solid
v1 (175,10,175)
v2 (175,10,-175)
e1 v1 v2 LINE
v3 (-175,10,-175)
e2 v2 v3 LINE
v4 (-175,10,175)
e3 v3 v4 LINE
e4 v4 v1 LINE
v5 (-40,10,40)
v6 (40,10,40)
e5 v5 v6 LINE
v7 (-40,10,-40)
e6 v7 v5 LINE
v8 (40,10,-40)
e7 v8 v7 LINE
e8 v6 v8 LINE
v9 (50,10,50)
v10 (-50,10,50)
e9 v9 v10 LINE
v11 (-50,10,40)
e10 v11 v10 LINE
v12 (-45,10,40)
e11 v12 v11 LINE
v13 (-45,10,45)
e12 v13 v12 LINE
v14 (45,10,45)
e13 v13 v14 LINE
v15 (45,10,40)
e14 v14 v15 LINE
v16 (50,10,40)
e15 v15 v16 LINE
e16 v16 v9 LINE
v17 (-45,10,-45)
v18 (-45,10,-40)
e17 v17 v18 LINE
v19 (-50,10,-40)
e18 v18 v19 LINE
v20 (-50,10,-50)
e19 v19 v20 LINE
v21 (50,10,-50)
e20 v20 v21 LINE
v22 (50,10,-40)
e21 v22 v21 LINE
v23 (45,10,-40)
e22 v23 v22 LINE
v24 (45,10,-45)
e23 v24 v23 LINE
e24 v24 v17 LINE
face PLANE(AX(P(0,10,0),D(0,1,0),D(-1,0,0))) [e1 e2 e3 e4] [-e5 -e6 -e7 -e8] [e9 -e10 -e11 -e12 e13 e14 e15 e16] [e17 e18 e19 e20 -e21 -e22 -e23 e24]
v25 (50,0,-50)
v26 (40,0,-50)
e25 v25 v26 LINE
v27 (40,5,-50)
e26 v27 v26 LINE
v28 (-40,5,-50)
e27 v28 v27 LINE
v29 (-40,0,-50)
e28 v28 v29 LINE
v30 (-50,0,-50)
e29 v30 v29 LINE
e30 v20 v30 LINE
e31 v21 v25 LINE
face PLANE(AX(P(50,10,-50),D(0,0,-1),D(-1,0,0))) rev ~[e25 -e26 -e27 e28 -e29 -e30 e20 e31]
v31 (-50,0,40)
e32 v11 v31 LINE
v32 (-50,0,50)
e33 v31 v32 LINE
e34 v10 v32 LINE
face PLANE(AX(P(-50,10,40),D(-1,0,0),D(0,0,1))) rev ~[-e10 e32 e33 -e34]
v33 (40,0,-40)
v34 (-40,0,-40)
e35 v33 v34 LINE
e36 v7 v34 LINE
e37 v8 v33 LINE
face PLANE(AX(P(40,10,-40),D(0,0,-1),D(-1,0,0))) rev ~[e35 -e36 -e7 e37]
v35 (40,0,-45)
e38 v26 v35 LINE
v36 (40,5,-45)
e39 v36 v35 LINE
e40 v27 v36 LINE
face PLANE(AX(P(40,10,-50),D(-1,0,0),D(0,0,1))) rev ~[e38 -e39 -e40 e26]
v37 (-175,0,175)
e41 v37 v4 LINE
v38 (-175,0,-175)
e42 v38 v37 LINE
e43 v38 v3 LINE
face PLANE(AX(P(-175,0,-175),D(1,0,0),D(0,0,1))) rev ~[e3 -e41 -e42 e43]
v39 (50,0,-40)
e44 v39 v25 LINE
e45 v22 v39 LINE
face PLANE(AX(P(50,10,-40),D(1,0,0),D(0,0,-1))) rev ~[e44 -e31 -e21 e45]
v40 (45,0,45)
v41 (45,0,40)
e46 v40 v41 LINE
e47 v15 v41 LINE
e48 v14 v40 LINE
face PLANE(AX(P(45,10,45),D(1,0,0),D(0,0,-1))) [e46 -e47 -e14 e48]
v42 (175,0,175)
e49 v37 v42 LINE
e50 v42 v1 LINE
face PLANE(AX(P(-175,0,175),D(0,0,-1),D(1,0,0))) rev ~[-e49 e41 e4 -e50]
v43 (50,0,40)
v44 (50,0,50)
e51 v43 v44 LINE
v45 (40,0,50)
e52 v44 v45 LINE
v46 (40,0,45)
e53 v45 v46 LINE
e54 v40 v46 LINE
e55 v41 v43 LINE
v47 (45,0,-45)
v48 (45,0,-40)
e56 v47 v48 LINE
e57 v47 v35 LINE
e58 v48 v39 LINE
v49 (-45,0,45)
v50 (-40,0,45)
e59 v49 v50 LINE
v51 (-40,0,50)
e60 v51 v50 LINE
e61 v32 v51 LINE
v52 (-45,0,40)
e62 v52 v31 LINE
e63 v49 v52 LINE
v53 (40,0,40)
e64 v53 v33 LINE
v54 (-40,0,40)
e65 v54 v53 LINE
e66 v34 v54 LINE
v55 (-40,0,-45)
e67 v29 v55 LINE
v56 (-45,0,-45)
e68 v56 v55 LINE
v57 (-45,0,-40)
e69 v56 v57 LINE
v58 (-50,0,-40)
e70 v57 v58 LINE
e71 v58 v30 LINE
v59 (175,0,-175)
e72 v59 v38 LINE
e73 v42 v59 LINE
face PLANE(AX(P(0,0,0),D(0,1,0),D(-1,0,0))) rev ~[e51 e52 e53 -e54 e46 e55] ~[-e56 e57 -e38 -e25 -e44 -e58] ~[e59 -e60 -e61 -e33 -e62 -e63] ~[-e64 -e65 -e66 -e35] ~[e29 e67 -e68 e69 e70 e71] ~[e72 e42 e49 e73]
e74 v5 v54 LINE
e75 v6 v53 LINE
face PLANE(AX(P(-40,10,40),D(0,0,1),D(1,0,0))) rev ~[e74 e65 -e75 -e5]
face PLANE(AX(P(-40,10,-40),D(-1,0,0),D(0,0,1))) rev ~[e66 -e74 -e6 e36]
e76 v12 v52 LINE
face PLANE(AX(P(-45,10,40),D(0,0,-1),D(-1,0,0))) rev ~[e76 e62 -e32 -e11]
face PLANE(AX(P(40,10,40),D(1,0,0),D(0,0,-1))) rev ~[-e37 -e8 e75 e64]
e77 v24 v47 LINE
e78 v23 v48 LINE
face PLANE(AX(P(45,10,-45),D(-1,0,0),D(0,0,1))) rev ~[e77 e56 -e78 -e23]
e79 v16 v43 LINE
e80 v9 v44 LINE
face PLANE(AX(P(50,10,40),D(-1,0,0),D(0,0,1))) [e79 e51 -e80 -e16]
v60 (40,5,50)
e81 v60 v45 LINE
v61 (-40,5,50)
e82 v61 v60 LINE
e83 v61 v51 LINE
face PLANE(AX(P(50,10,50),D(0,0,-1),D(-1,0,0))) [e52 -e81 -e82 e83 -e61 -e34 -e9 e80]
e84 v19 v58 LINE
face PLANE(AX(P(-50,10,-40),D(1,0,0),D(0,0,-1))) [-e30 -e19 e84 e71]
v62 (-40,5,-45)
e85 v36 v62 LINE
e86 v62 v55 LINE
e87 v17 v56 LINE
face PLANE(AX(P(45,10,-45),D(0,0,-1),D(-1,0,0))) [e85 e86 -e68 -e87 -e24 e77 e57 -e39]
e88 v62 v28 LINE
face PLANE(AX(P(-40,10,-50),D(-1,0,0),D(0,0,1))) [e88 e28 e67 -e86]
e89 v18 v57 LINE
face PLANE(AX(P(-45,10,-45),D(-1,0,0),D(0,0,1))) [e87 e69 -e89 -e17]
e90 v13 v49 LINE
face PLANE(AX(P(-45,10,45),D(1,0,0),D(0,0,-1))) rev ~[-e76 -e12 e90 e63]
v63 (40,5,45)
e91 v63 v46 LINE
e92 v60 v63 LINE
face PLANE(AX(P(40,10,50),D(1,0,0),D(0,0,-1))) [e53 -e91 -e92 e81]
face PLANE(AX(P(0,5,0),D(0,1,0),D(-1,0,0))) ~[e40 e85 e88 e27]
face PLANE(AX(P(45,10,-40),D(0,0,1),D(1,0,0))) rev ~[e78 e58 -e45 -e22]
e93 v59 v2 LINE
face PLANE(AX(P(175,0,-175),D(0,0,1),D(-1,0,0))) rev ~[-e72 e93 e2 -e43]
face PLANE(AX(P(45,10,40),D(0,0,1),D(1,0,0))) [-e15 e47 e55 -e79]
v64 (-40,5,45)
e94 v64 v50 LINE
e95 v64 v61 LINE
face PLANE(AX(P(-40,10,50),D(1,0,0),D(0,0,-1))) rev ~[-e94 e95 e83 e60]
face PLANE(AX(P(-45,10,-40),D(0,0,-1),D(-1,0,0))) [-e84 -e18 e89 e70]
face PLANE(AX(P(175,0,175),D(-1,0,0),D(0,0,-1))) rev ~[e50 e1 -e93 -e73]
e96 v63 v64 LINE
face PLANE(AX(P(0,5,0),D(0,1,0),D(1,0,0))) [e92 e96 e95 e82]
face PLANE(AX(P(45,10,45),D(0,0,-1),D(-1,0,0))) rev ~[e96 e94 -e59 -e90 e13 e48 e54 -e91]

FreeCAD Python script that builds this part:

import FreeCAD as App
import Part
import Sketcher
Q = App.Units.Quantity

doc = App.newDocument("Part")
body = doc.addObject("PartDesign::Body", "Body")

sketch1 = body.newObject("Sketcher::SketchObject", "Sketch")
sketch1.AttachmentSupport = (doc.getObject("XZ_Plane"), [""])
sketch1.MapMode = "FlatFace"
sketch1.addGeometry([
    Part.LineSegment(App.Vector(-175, 175, 0), App.Vector(175, 175, 0)),
    Part.LineSegment(App.Vector(175, 175, 0), App.Vector(175, -175, 0)),
    Part.LineSegment(App.Vector(175, -175, 0), App.Vector(-175, -175, 0)),
    Part.LineSegment(App.Vector(-175, -175, 0), App.Vector(-175, 175, 0)),
], False)
sketch1.addConstraint([
    Sketcher.Constraint("Coincident", 0, 2, 1, 1),
    Sketcher.Constraint("Coincident", 1, 2, 2, 1),
    Sketcher.Constraint("Coincident", 2, 2, 3, 1),
    Sketcher.Constraint("Coincident", 3, 2, 0, 1),
    Sketcher.Constraint("Horizontal", 0),
    Sketcher.Constraint("Vertical", 1),
    Sketcher.Constraint("Horizontal", 2),
    Sketcher.Constraint("Vertical", 3),
    Sketcher.Constraint("Symmetric", 0, 2, 2, 2, -1, 1),
    Sketcher.Constraint("Equal", 2, 1),
    Sketcher.Constraint("DistanceX", 0, 1, 0, 2, Q("350 mm")),
])
pad1 = body.newObject("PartDesign::Pad", "Pad")
pad1.Profile = sketch1
pad1.Length = 10
pad1.Reversed = True

sketch2 = body.newObject("Sketcher::SketchObject", "Sketch001")
sketch2.AttachmentSupport = (doc.getObject("XZ_Plane"), [""])
sketch2.MapMode = "FlatFace"
sketch2.AttachmentOffset = App.Placement(App.Vector(0, 0, -10), App.Rotation())
sketch2.addGeometry([
    Part.LineSegment(App.Vector(-40, 40, 0), App.Vector(40, 40, 0)),
    Part.LineSegment(App.Vector(40, 40, 0), App.Vector(40, -40, 0)),
    Part.LineSegment(App.Vector(40, -40, 0), App.Vector(-40, -40, 0)),
    Part.LineSegment(App.Vector(-40, -40, 0), App.Vector(-40, 40, 0)),
], False)
sketch2.addConstraint([
    Sketcher.Constraint("Coincident", 0, 2, 1, 1),
    Sketcher.Constraint("Coincident", 1, 2, 2, 1),
    Sketcher.Constraint("Coincident", 2, 2, 3, 1),
    Sketcher.Constraint("Coincident", 3, 2, 0, 1),
    Sketcher.Constraint("Horizontal", 0),
    Sketcher.Constraint("Vertical", 1),
    Sketcher.Constraint("Horizontal", 2),
    Sketcher.Constraint("Vertical", 3),
    Sketcher.Constraint("Symmetric", 0, 2, 2, 2, -1, 1),
    Sketcher.Constraint("Equal", 2, 1),
    Sketcher.Constraint("DistanceX", 0, 1, 0, 2, Q("80 mm")),
])
pocket1 = body.newObject("PartDesign::Pocket", "Pocket")
pocket1.Profile = sketch2
pocket1.Length = 10
pocket1.Reversed = True

sketch3 = body.newObject("Sketcher::SketchObject", "Sketch002")
sketch3.AttachmentSupport = (doc.getObject("XZ_Plane"), [""])
sketch3.MapMode = "FlatFace"
sketch3.AttachmentOffset = App.Placement(App.Vector(0, 0, -10), App.Rotation())
sketch3.addGeometry([
    Part.LineSegment(App.Vector(50, 40, 0), App.Vector(45, 40, 0)),
    Part.LineSegment(App.Vector(45, 40, 0), App.Vector(45, 45, 0)),
    Part.LineSegment(App.Vector(45, 45, 0), App.Vector(40, 45, 0)),
    Part.LineSegment(App.Vector(40, 45, 0), App.Vector(40, 50, 0)),
    Part.LineSegment(App.Vector(40, 50, 0), App.Vector(50, 50, 0)),
    Part.LineSegment(App.Vector(50, 50, 0), App.Vector(50, 40, 0)),
    Part.LineSegment(App.Vector(45, -45, 0), App.Vector(45, -40, 0)),
    Part.LineSegment(App.Vector(45, -40, 0), App.Vector(50, -40, 0)),
    Part.LineSegment(App.Vector(50, -40, 0), App.Vector(50, -50, 0)),
    Part.LineSegment(App.Vector(50, -50, 0), App.Vector(40, -50, 0)),
    Part.LineSegment(App.Vector(40, -50, 0), App.Vector(40, -45, 0)),
    Part.LineSegment(App.Vector(40, -45, 0), App.Vector(45, -45, 0)),
    Part.LineSegment(App.Vector(-45, 45, 0), App.Vector(-45, 40, 0)),
    Part.LineSegment(App.Vector(-45, 40, 0), App.Vector(-50, 40, 0)),
    Part.LineSegment(App.Vector(-50, 40, 0), App.Vector(-50, 50, 0)),
    Part.LineSegment(App.Vector(-50, 50, 0), App.Vector(-40, 50, 0)),
    Part.LineSegment(App.Vector(-40, 50, 0), App.Vector(-40, 45, 0)),
    Part.LineSegment(App.Vector(-40, 45, 0), App.Vector(-45, 45, 0)),
    Part.LineSegment(App.Vector(-50, -50, 0), App.Vector(-50, -40, 0)),
    Part.LineSegment(App.Vector(-50, -40, 0), App.Vector(-45, -40, 0)),
    Part.LineSegment(App.Vector(-45, -40, 0), App.Vector(-45, -45, 0)),
    Part.LineSegment(App.Vector(-45, -45, 0), App.Vector(-40, -45, 0)),
    Part.LineSegment(App.Vector(-40, -45, 0), App.Vector(-40, -50, 0)),
    Part.LineSegment(App.Vector(-40, -50, 0), App.Vector(-50, -50, 0)),
], False)
sketch3.addConstraint([
    Sketcher.Constraint("Coincident", 0, 2, 1, 1),
    Sketcher.Constraint("Coincident", 1, 2, 2, 1),
    Sketcher.Constraint("Coincident", 2, 2, 3, 1),
    Sketcher.Constraint("Coincident", 3, 2, 4, 1),
    Sketcher.Constraint("Coincident", 4, 2, 5, 1),
    Sketcher.Constraint("Coincident", 5, 2, 0, 1),
    Sketcher.Constraint("Coincident", 6, 2, 7, 1),
    Sketcher.Constraint("Coincident", 7, 2, 8, 1),
    Sketcher.Constraint("Coincident", 8, 2, 9, 1),
    Sketcher.Constraint("Coincident", 9, 2, 10, 1),
    Sketcher.Constraint("Coincident", 10, 2, 11, 1),
    Sketcher.Constraint("Coincident", 11, 2, 6, 1),
    Sketcher.Constraint("Coincident", 12, 2, 13, 1),
    Sketcher.Constraint("Coincident", 13, 2, 14, 1),
    Sketcher.Constraint("Coincident", 14, 2, 15, 1),
    Sketcher.Constraint("Coincident", 15, 2, 16, 1),
    Sketcher.Constraint("Coincident", 16, 2, 17, 1),
    Sketcher.Constraint("Coincident", 17, 2, 12, 1),
    Sketcher.Constraint("Coincident", 18, 2, 19, 1),
    Sketcher.Constraint("Coincident", 19, 2, 20, 1),
    Sketcher.Constraint("Coincident", 20, 2, 21, 1),
    Sketcher.Constraint("Coincident", 21, 2, 22, 1),
    Sketcher.Constraint("Coincident", 22, 2, 23, 1),
    Sketcher.Constraint("Coincident", 23, 2, 18, 1),
    Sketcher.Constraint("Horizontal", 0),
    Sketcher.Constraint("Vertical", 1),
    Sketcher.Constraint("Horizontal", 2),
    Sketcher.Constraint("Vertical", 3),
    Sketcher.Constraint("Horizontal", 4),
    Sketcher.Constraint("Vertical", 5),
    Sketcher.Constraint("Vertical", 6),
    Sketcher.Constraint("Horizontal", 7),
    Sketcher.Constraint("Vertical", 8),
    Sketcher.Constraint("Horizontal", 9),
    Sketcher.Constraint("Vertical", 10),
    Sketcher.Constraint("Horizontal", 11),
    Sketcher.Constraint("Vertical", 12),
    Sketcher.Constraint("Horizontal", 13),
    Sketcher.Constraint("Vertical", 14),
    Sketcher.Constraint("Horizontal", 15),
    Sketcher.Constraint("Vertical", 16),
    Sketcher.Constraint("Horizontal", 17),
    Sketcher.Constraint("Vertical", 18),
    Sketcher.Constraint("Horizontal", 19),
    Sketcher.Constraint("Vertical", 20),
    Sketcher.Constraint("Horizontal", 21),
    Sketcher.Constraint("Vertical", 22),
    Sketcher.Constraint("Horizontal", 23),
    Sketcher.Constraint("Symmetric", 6, 2, 12, 2, -1, 1),
    Sketcher.Constraint("Symmetric", 8, 2, 14, 2, -1, 1),
    Sketcher.Constraint("Symmetric", 10, 2, 16, 2, -1, 1),
    Sketcher.Constraint("Symmetric", 5, 2, 18, 2, -1, 1),
    Sketcher.Constraint("Symmetric", 1, 2, 20, 2, -1, 1),
    Sketcher.Constraint("Symmetric", 3, 2, 22, 2, -1, 1),
    Sketcher.Constraint("Symmetric", 0, 2, 12, 2, -2),
    Sketcher.Constraint("Symmetric", 4, 2, 14, 2, -2),
    Sketcher.Constraint("Symmetric", 2, 2, 16, 2, -2),
    Sketcher.Constraint("Equal", 0, 2),
    Sketcher.Constraint("Equal", 21, 1),
    Sketcher.Constraint("Equal", 1, 3),
    Sketcher.Constraint("DistanceX", 0, 2, 0, 1, Q("5 mm")),
    Sketcher.Constraint("DistanceX", -1, 1, 0, 2, Q("45 mm")),
    Sketcher.Constraint("DistanceY", -1, 1, 0, 2, Q("40 mm")),
])
pocket2 = body.newObject("PartDesign::Pocket", "Pocket001")
pocket2.Profile = sketch3
pocket2.Length = 10
pocket2.Reversed = True

sketch4 = body.newObject("Sketcher::SketchObject", "Sketch003")
sketch4.AttachmentSupport = (doc.getObject("XZ_Plane"), [""])
sketch4.MapMode = "FlatFace"
sketch4.AttachmentOffset = App.Placement(App.Vector(0, 0, -10), App.Rotation())
sketch4.addGeometry([
    Part.LineSegment(App.Vector(40, 50, 0), App.Vector(40, 45, 0)),
    Part.LineSegment(App.Vector(40, 45, 0), App.Vector(-40, 45, 0)),
    Part.LineSegment(App.Vector(-40, 45, 0), App.Vector(-40, 50, 0)),
    Part.LineSegment(App.Vector(-40, 50, 0), App.Vector(40, 50, 0)),
], False)
sketch4.addConstraint([
    Sketcher.Constraint("Coincident", 0, 2, 1, 1),
    Sketcher.Constraint("Coincident", 1, 2, 2, 1),
    Sketcher.Constraint("Coincident", 2, 2, 3, 1),
    Sketcher.Constraint("Coincident", 3, 2, 0, 1),
    Sketcher.Constraint("Vertical", 0),
    Sketcher.Constraint("Horizontal", 1),
    Sketcher.Constraint("Vertical", 2),
    Sketcher.Constraint("Horizontal", 3),
    Sketcher.Constraint("DistanceX", 1, 2, 1, 1, Q("80 mm")),
    Sketcher.Constraint("DistanceY", 0, 2, 0, 1, Q("5 mm")),
    Sketcher.Constraint("DistanceX", -1, 1, 0, 2, Q("40 mm")),
    Sketcher.Constraint("DistanceY", -1, 1, 0, 2, Q("45 mm")),
])
pocket3 = body.newObject("PartDesign::Pocket", "Pocket002")
pocket3.Profile = sketch4
pocket3.Length = 5
pocket3.Reversed = True
doc.recompute()

mirrored = body.newObject("PartDesign::Mirrored", "Mirrored")
mirrored.Originals = [pocket3]
mirrored.MirrorPlane = (doc.getObject("XY_Plane"), [""])
body.Tip = mirrored

doc.recompute()
